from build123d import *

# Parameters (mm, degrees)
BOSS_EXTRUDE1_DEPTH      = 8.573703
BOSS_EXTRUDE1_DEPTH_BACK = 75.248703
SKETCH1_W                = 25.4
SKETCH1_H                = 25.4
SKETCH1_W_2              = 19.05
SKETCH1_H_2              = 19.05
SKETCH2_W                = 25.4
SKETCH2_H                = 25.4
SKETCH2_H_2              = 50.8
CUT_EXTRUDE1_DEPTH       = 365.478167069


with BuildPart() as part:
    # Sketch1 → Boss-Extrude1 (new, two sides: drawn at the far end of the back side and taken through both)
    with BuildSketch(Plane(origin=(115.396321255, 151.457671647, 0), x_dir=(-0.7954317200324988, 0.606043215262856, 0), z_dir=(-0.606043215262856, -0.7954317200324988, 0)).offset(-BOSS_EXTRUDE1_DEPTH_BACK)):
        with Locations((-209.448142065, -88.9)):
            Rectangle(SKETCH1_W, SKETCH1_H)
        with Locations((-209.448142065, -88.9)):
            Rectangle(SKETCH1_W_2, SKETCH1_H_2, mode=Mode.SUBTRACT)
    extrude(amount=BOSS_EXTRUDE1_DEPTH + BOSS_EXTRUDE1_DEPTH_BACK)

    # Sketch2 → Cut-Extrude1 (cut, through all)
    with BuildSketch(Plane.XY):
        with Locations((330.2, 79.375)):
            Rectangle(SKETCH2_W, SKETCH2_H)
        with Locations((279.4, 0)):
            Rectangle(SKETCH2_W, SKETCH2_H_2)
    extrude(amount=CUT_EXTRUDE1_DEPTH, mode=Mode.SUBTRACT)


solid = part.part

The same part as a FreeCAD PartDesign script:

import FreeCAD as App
import Part
import Sketcher
Q = App.Units.Quantity


def add_polygon(sketch, points):
    """Adds a closed chain of lines whose ends are joined by coincident constraints."""
    first, n = sketch.GeometryCount, len(points)
    for a, b in zip(points, points[1:] + points[:1]):
        sketch.addGeometry(Part.LineSegment(App.Vector(*a, 0), App.Vector(*b, 0)), False)
    for i in range(n):
        sketch.addConstraint(Sketcher.Constraint("Coincident", first + i, 2, first + (i + 1) % n, 1))

doc = App.newDocument("Part")
body = doc.addObject("PartDesign::Body", "Body")

sketch1 = body.newObject("Sketcher::SketchObject", "Sketch")
sketch1.Placement = App.Placement(App.Vector(115.396321, 151.457672, 0), App.Rotation(App.Vector(-0.79543172, 0.606043215, 0), App.Vector(0, 0, -1), App.Vector(-0.606043215, -0.79543172, 0), "ZXY"))
add_polygon(sketch1, [(-222.148142, -76.2), (-222.148142, -101.6), (-196.748142, -101.6), (-196.748142, -76.2)])
add_polygon(sketch1, [(-199.923142, -98.425), (-218.973142, -98.425), (-218.973142, -79.375), (-199.923142, -79.375)])
sketch1.addConstraint(Sketcher.Constraint("Vertical", 0))
sketch1.addConstraint(Sketcher.Constraint("Horizontal", 1))
sketch1.addConstraint(Sketcher.Constraint("Vertical", 2))
sketch1.addConstraint(Sketcher.Constraint("Horizontal", 3))
sketch1.addConstraint(Sketcher.Constraint("Horizontal", 4))
sketch1.addConstraint(Sketcher.Constraint("Vertical", 5))
sketch1.addConstraint(Sketcher.Constraint("Horizontal", 6))
sketch1.addConstraint(Sketcher.Constraint("Vertical", 7))
sketch1.addConstraint(Sketcher.Constraint("Equal", 3, 0))
sketch1.addConstraint(Sketcher.Constraint("Equal", 6, 5))
sketch1.addConstraint(Sketcher.Constraint("DistanceX", 1, 1, 1, 2, Q("1 in")))
sketch1.addConstraint(Sketcher.Constraint("DistanceY", 0, 2, -1, 1, Q("4 in")))
sketch1.addConstraint(Sketcher.Constraint("DistanceX", 4, 2, 4, 1, Q("0.75 in")))
sketch1.addConstraint(Sketcher.Constraint("DistanceY", 4, 2, -1, 1, Q("3.875 in")))
sketch1.addConstraint(Sketcher.Constraint("DistanceX", 0, 2, 4, 2, Q("0.125 in")))
sketch1.addConstraint(Sketcher.Constraint("DistanceX", 0, 2, -1, 1, 222.148142))
pad1 = body.newObject("PartDesign::Pad", "Pad")
pad1.Profile = sketch1
pad1.Type = "TwoLengths"
pad1.Length = 8.573703
pad1.Length2 = 75.248703

sketch2 = body.newObject("Sketcher::SketchObject", "Sketch001")
sketch2.AttachmentSupport = (doc.getObject("XY_Plane"), [""])
sketch2.MapMode = "FlatFace"
add_polygon(sketch2, [(317.5, 92.075), (317.5, 66.675), (342.9, 66.675), (342.9, 92.075)])
add_polygon(sketch2, [(266.7, 25.4), (266.7, -25.4), (292.1, -25.4), (292.1, 25.4)])
sketch2.addConstraint(Sketcher.Constraint("Vertical", 0))
sketch2.addConstraint(Sketcher.Constraint("Horizontal", 1))
sketch2.addConstraint(Sketcher.Constraint("Vertical", 2))
sketch2.addConstraint(Sketcher.Constraint("Horizontal", 3))
sketch2.addConstraint(Sketcher.Constraint("Vertical", 4))
sketch2.addConstraint(Sketcher.Constraint("Horizontal", 5))
sketch2.addConstraint(Sketcher.Constraint("Vertical", 6))
sketch2.addConstraint(Sketcher.Constraint("Horizontal", 7))
sketch2.addConstraint(Sketcher.Constraint("Equal", 3, 5))
sketch2.addConstraint(Sketcher.Constraint("Equal", 7, 0))
sketch2.addConstraint(Sketcher.Constraint("DistanceX", 1, 1, 1, 2, Q("1 in")))
sketch2.addConstraint(Sketcher.Constraint("DistanceY", 4, 2, 4, 1, Q("2 in")))
sketch2.addConstraint(Sketcher.Constraint("DistanceY", 4, 2, -1, 1, Q("1 in")))
sketch2.addConstraint(Sketcher.Constraint("DistanceX", 4, 2, 0, 2, Q("2 in")))
sketch2.addConstraint(Sketcher.Constraint("DistanceX", -1, 1, 0, 2, Q("12.5 in")))
sketch2.addConstraint(Sketcher.Constraint("DistanceY", -1, 1, 0, 2, Q("2.625 in")))
pocket1 = body.newObject("PartDesign::Pocket", "Pocket")
pocket1.Profile = sketch2
pocket1.Type = "ThroughAll"
pocket1.Reversed = True

doc.recompute()
